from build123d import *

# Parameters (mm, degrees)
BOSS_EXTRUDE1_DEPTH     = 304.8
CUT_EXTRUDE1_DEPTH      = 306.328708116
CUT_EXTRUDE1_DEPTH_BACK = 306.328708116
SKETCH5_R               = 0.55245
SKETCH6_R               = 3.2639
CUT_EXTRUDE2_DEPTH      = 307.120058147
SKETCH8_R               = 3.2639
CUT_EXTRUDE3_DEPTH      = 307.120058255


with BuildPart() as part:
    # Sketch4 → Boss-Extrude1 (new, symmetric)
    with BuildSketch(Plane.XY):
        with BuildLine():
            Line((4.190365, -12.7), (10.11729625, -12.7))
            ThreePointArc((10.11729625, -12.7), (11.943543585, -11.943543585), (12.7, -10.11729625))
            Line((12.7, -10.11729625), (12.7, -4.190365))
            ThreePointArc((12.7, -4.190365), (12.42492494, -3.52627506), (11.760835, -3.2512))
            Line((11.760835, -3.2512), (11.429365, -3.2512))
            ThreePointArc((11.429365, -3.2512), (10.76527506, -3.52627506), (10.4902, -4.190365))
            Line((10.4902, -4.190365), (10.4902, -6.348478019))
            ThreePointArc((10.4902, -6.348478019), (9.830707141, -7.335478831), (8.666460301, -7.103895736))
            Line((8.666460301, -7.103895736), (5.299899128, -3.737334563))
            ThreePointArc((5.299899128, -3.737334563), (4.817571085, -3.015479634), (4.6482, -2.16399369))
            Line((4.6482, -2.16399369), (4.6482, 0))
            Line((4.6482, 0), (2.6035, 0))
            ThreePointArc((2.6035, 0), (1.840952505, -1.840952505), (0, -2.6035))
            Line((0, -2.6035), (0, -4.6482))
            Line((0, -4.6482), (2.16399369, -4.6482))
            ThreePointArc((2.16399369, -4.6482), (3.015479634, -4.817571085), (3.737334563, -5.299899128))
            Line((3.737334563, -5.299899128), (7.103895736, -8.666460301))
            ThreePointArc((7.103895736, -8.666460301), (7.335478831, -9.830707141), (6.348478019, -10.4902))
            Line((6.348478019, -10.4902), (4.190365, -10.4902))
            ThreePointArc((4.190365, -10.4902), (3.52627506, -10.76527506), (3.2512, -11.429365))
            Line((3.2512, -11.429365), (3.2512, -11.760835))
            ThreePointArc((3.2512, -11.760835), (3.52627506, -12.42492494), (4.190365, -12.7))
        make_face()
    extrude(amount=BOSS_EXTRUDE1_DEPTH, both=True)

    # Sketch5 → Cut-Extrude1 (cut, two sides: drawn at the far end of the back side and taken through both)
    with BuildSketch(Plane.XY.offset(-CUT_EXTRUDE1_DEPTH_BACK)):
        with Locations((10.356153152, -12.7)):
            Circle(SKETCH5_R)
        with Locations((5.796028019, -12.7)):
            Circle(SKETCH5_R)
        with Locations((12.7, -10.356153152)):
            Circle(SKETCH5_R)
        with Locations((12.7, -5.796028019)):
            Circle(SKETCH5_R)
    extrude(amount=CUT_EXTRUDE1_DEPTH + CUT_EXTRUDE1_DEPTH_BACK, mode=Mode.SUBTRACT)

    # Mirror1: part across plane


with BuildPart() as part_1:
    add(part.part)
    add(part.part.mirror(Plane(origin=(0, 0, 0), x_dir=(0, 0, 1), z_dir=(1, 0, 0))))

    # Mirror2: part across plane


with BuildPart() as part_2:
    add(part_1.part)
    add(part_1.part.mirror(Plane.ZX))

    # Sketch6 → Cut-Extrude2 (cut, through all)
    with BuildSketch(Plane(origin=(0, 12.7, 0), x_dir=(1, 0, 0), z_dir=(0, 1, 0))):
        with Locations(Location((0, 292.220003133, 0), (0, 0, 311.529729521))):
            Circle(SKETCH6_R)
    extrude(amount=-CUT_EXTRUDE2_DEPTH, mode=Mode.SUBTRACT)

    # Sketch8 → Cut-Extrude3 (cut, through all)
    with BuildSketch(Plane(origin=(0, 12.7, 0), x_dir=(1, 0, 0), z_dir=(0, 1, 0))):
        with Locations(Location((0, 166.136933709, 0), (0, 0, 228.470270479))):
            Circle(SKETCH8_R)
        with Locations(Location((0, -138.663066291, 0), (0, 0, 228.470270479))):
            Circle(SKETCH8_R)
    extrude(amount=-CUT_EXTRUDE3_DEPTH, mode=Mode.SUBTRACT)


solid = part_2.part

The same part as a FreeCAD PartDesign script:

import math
import FreeCAD as App
import Part
import Sketcher
Q = App.Units.Quantity

doc = App.newDocument("Part")
body = doc.addObject("PartDesign::Body", "Body")

# Sketch on XY plane
sketch1 = doc.addObject("Sketcher::SketchObject", "Sketch")
body.addObject(sketch1)
sketch1.AttachmentSupport = (doc.XY_Plane, [""])
sketch1.MapMode = "FlatFace"
sketch1.addGeometry(Part.LineSegment(App.Vector(4.19, -12.7, 0), App.Vector(10.12, -12.7, 0)), False)
sketch1.addGeometry(Part.ArcOfCircle(Part.Circle(App.Vector(10.12, -10.12, 0), App.Vector(0, 0, 1), 2.58), math.radians(-90), math.radians(0)), False)
sketch1.addGeometry(Part.LineSegment(App.Vector(12.7, -10.12, 0), App.Vector(12.7, -4.19, 0)), False)
sketch1.addGeometry(Part.ArcOfCircle(Part.Circle(App.Vector(11.76, -4.19, 0), App.Vector(0, 0, 1), 0.94), math.radians(0), math.radians(90)), False)
sketch1.addGeometry(Part.LineSegment(App.Vector(11.76, -3.25, 0), App.Vector(11.43, -3.25, 0)), False)
sketch1.addGeometry(Part.ArcOfCircle(Part.Circle(App.Vector(11.43, -4.19, 0), App.Vector(0, 0, 1), 0.94), math.radians(90), math.radians(180)), False)
sketch1.addGeometry(Part.LineSegment(App.Vector(10.49, -4.19, 0), App.Vector(10.49, -6.35, 0)), False)
sketch1.addGeometry(Part.ArcOfCircle(Part.Circle(App.Vector(9.42, -6.35, 0), App.Vector(0, 0, 1), 1.07), math.radians(-135), math.radians(0)), False)
sketch1.addGeometry(Part.LineSegment(App.Vector(8.67, -7.1, 0), App.Vector(5.3, -3.74, 0)), False)
sketch1.addGeometry(Part.ArcOfCircle(Part.Circle(App.Vector(6.87, -2.16, 0), App.Vector(0, 0, 1), 2.23), math.radians(-180), math.radians(-135)), False)
sketch1.addGeometry(Part.LineSegment(App.Vector(4.65, -2.16, 0), App.Vector(4.65, 0, 0)), False)
sketch1.addGeometry(Part.LineSegment(App.Vector(4.65, 0, 0), App.Vector(2.6, 0, 0)), False)
sketch1.addGeometry(Part.ArcOfCircle(Part.Circle(App.Vector(0, 0, 0), App.Vector(0, 0, 1), 2.6), math.radians(-90), math.radians(0)), False)
sketch1.addGeometry(Part.LineSegment(App.Vector(0, -2.6, 0), App.Vector(0, -4.65, 0)), False)
sketch1.addGeometry(Part.LineSegment(App.Vector(0, -4.65, 0), App.Vector(2.16, -4.65, 0)), False)
sketch1.addGeometry(Part.ArcOfCircle(Part.Circle(App.Vector(2.16, -6.87, 0), App.Vector(0, 0, 1), 2.23), math.radians(45), math.radians(90)), False)
sketch1.addGeometry(Part.LineSegment(App.Vector(3.74, -5.3, 0), App.Vector(7.1, -8.67, 0)), False)
sketch1.addGeometry(Part.ArcOfCircle(Part.Circle(App.Vector(6.35, -9.42, 0), App.Vector(0, 0, 1), 1.07), math.radians(-90), math.radians(45)), False)
sketch1.addGeometry(Part.LineSegment(App.Vector(6.35, -10.49, 0), App.Vector(4.19, -10.49, 0)), False)
sketch1.addGeometry(Part.ArcOfCircle(Part.Circle(App.Vector(4.19, -11.43, 0), App.Vector(0, 0, 1), 0.94), math.radians(90), math.radians(180)), False)
sketch1.addGeometry(Part.LineSegment(App.Vector(3.25, -11.43, 0), App.Vector(3.25, -11.76, 0)), False)
sketch1.addGeometry(Part.ArcOfCircle(Part.Circle(App.Vector(4.19, -11.76, 0), App.Vector(0, 0, 1), 0.94), math.radians(-180), math.radians(-90)), False)
sketch1.addConstraint(Sketcher.Constraint("Tangent", 0, 2, 1, 1))
sketch1.addConstraint(Sketcher.Constraint("Tangent", 1, 2, 2, 1))
sketch1.addConstraint(Sketcher.Constraint("Tangent", 2, 2, 3, 1))
sketch1.addConstraint(Sketcher.Constraint("Tangent", 3, 2, 4, 1))
sketch1.addConstraint(Sketcher.Constraint("Tangent", 4, 2, 5, 1))
sketch1.addConstraint(Sketcher.Constraint("Tangent", 5, 2, 6, 1))
sketch1.addConstraint(Sketcher.Constraint("Tangent", 6, 2, 7, 2))
sketch1.addConstraint(Sketcher.Constraint("Tangent", 7, 1, 8, 1))
sketch1.addConstraint(Sketcher.Constraint("Tangent", 8, 2, 9, 2))
sketch1.addConstraint(Sketcher.Constraint("Tangent", 9, 1, 10, 1))
sketch1.addConstraint(Sketcher.Constraint("Coincident", 10, 2, 11, 1))
sketch1.addConstraint(Sketcher.Constraint("Coincident", 11, 2, 12, 2))
sketch1.addConstraint(Sketcher.Constraint("Coincident", 12, 1, 13, 1))
sketch1.addConstraint(Sketcher.Constraint("Coincident", 13, 2, 14, 1))
sketch1.addConstraint(Sketcher.Constraint("Tangent", 14, 2, 15, 2))
sketch1.addConstraint(Sketcher.Constraint("Tangent", 15, 1, 16, 1))
sketch1.addConstraint(Sketcher.Constraint("Tangent", 16, 2, 17, 2))
sketch1.addConstraint(Sketcher.Constraint("Tangent", 17, 1, 18, 1))
sketch1.addConstraint(Sketcher.Constraint("Tangent", 18, 2, 19, 1))
sketch1.addConstraint(Sketcher.Constraint("Tangent", 19, 2, 20, 1))
sketch1.addConstraint(Sketcher.Constraint("Tangent", 20, 2, 21, 1))
sketch1.addConstraint(Sketcher.Constraint("Tangent", 21, 2, 0, 1))
sketch1.addConstraint(Sketcher.Constraint("Horizontal", 0))
sketch1.addConstraint(Sketcher.Constraint("Vertical", 2))
sketch1.addConstraint(Sketcher.Constraint("Horizontal", 4))
sketch1.addConstraint(Sketcher.Constraint("Vertical", 6))
sketch1.addConstraint(Sketcher.Constraint("Vertical", 10))
sketch1.addConstraint(Sketcher.Constraint("Horizontal", 11))
sketch1.addConstraint(Sketcher.Constraint("Vertical", 13))
sketch1.addConstraint(Sketcher.Constraint("Horizontal", 14))
sketch1.addConstraint(Sketcher.Constraint("Horizontal", 18))
sketch1.addConstraint(Sketcher.Constraint("Vertical", 20))
sketch1.addConstraint(Sketcher.Constraint("Coincident", 12, 3, -1, 1))
sketch1.addConstraint(Sketcher.Constraint("Equal", 3, 5))
sketch1.addConstraint(Sketcher.Constraint("Equal", 9, 15))
sketch1.addConstraint(Sketcher.Constraint("Equal", 7, 17))
sketch1.addConstraint(Sketcher.Constraint("Equal", 5, 19))
sketch1.addConstraint(Sketcher.Constraint("Equal", 19, 21))
sketch1.addConstraint(Sketcher.Constraint("PointOnObject", 10, 2, -1))
sketch1.addConstraint(Sketcher.Constraint("PointOnObject", 12, 1, -2))
sketch1.addConstraint(Sketcher.Constraint("Parallel", 8, 16))
sketch1.addConstraint(Sketcher.Constraint("Equal", 0, 2))
sketch1.addConstraint(Sketcher.Constraint("Equal", 18, 6))
sketch1.addConstraint(Sketcher.Constraint("Equal", 14, 10))
sketch1.addConstraint(Sketcher.Constraint("Equal", 11, 13))
sketch1.addConstraint(Sketcher.Constraint("Equal", 4, 20))
sketch1.addConstraint(Sketcher.Constraint("Equal", 8, 16))
sketch1.addConstraint(Sketcher.Constraint("DistanceY", 0, 2, -1, 1, Q("0.5 in")))
sketch1.addConstraint(Sketcher.Constraint("Radius", 9, Q("0.0876 in")))
sketch1.addConstraint(Sketcher.Constraint("Radius", 12, Q("0.1025 in")))
sketch1.addConstraint(Sketcher.Constraint("DistanceX", 9, 1, 5, 2, Q("0.23 in")))
sketch1.addConstraint(Sketcher.Constraint("DistanceX", 11, 2, 11, 1, Q("0.0805 in")))
sketch1.addConstraint(Sketcher.Constraint("DistanceY", 3, 2, -1, 1, Q("0.128 in")))
sketch1.addConstraint(Sketcher.Constraint("Radius", 7, 1.068322))
sketch1.addConstraint(Sketcher.Constraint("DistanceX", 17, 3, 7, 3, Q("0.121 in")))
sketch1.addConstraint(Sketcher.Constraint("Radius", 1, 2.582704))
sketch1.addConstraint(Sketcher.Constraint("Radius", 3, 0.939165))
pad1 = doc.addObject("PartDesign::Pad", "Pad")
body.addObject(pad1)
pad1.Profile = sketch1
pad1.Length = Q("24 in")
pad1.Midplane = True

# Sketch on XY plane
sketch2 = doc.addObject("Sketcher::SketchObject", "Sketch001")
body.addObject(sketch2)
sketch2.AttachmentSupport = (doc.XY_Plane, [""])
sketch2.MapMode = "FlatFace"
sketch2.addGeometry(Part.Circle(App.Vector(10.4, -12.7, 0), App.Vector(0, 0, 1), 0.6), False)
sketch2.addGeometry(Part.Circle(App.Vector(5.8, -12.7, 0), App.Vector(0, 0, 1), 0.6), False)
sketch2.addGeometry(Part.Circle(App.Vector(12.7, -10.4, 0), App.Vector(0, 0, 1), 0.6), False)
sketch2.addGeometry(Part.Circle(App.Vector(12.7, -5.8, 0), App.Vector(0, 0, 1), 0.6), False)
sketch2.addConstraint(Sketcher.Constraint("Equal", 0, 1))
sketch2.addConstraint(Sketcher.Constraint("Equal", 1, 2))
sketch2.addConstraint(Sketcher.Constraint("Equal", 2, 3))
sketch2.addConstraint(Sketcher.Constraint("Horizontal", 0, 3, 1, 3))
sketch2.addConstraint(Sketcher.Constraint("Vertical", 2, 3, 3, 3))
sketch2.addConstraint(Sketcher.Constraint("Diameter", 0, Q("0.0435 in")))
sketch2.addConstraint(Sketcher.Constraint("DistanceY", 0, 3, -1, 1, Q("0.5 in")))
sketch2.addConstraint(Sketcher.Constraint("DistanceX", -1, 1, 2, 3, Q("0.5 in")))
sketch2.addConstraint(Sketcher.Constraint("DistanceX", -1, 1, 1, 3, 5.796028))
sketch2.addConstraint(Sketcher.Constraint("DistanceY", 3, 3, -1, 1, 5.796028))
sketch2.addConstraint(Sketcher.Constraint("DistanceX", -1, 1, 0, 3, 10.356153))
sketch2.addConstraint(Sketcher.Constraint("DistanceY", 2, 3, -1, 1, 10.356153))
pocket1 = doc.addObject("PartDesign::Pocket", "Pocket")
body.addObject(pocket1)
pocket1.Profile = sketch2
pocket1.Type = "ThroughAll"
pocket1.Midplane = True
body2 = doc.addObject("PartDesign::Body", "Body001")
doc.recompute()

body2.BaseFeature = body
doc.recompute()

mirroring = doc.addObject("Part::Mirroring", "Mirroring")
mirroring.Source = body
mirroring.Base = App.Vector(0, 0, 0)
mirroring.Normal = App.Vector(1, 0, 0)
body3 = doc.addObject("PartDesign::Body", "Body002")
body3.BaseFeature = mirroring
boolean = doc.addObject("PartDesign::Boolean", "Boolean")
body2.addObject(boolean)
boolean.Type = "Fuse"
boolean.addObjects([body3])
doc.recompute()
body4 = doc.addObject("PartDesign::Body", "Body003")
doc.recompute()

body4.BaseFeature = body2
doc.recompute()

mirroring2 = doc.addObject("Part::Mirroring", "Mirroring001")
mirroring2.Source = body2
mirroring2.Base = App.Vector(0, 0, 0)
mirroring2.Normal = App.Vector(0, 1, 0)
body5 = doc.addObject("PartDesign::Body", "Body004")
body5.BaseFeature = mirroring2
boolean2 = doc.addObject("PartDesign::Boolean", "Boolean001")
body4.addObject(boolean2)
boolean2.Type = "Fuse"
boolean2.addObjects([body5])
doc.recompute()

# Sketch on XZ plane
sketch3 = doc.addObject("Sketcher::SketchObject", "Sketch002")
body4.addObject(sketch3)
sketch3.AttachmentSupport = (doc.getObject("XZ_Plane003"), [""])
sketch3.MapMode = "FlatFace"
sketch3.AttachmentOffset = App.Placement(App.Vector(0, 0, -0.5 * 25.4), App.Rotation())
sketch3.addGeometry(Part.Circle(App.Vector(0, -292.2, 0), App.Vector(0, 0, 1), 3.3), False)
sketch3.addConstraint(Sketcher.Constraint("PointOnObject", 0, 3, -2))
sketch3.addConstraint(Sketcher.Constraint("Diameter", 0, Q("0.257 in")))
sketch3.addConstraint(Sketcher.Constraint("DistanceY", 0, 3, -1, 1, 292.220003))
pocket2 = doc.addObject("PartDesign::Pocket", "Pocket001")
body4.addObject(pocket2)
pocket2.Profile = sketch3
pocket2.Type = "ThroughAll"
pocket2.Reversed = True

# Sketch on XZ plane
sketch4 = doc.addObject("Sketcher::SketchObject", "Sketch003")
body4.addObject(sketch4)
sketch4.AttachmentSupport = (doc.getObject("XZ_Plane003"), [""])
sketch4.MapMode = "FlatFace"
sketch4.AttachmentOffset = App.Placement(App.Vector(0, 0, -0.5 * 25.4), App.Rotation())
sketch4.addGeometry(Part.Circle(App.Vector(0, -166.1, 0), App.Vector(0, 0, 1), 3.3), False)
sketch4.addGeometry(Part.Circle(App.Vector(0, 138.7, 0), App.Vector(0, 0, 1), 3.3), False)
sketch4.addConstraint(Sketcher.Constraint("Equal", 0, 1))
sketch4.addConstraint(Sketcher.Constraint("PointOnObject", 0, 3, -2))
sketch4.addConstraint(Sketcher.Constraint("PointOnObject", 1, 3, -2))
sketch4.addConstraint(Sketcher.Constraint("Diameter", 0, Q("0.257 in")))
sketch4.addConstraint(Sketcher.Constraint("DistanceY", 0, 3, 1, 3, Q("12 in")))
sketch4.addConstraint(Sketcher.Constraint("DistanceY", 0, 3, -1, 1, 166.136934))
pocket3 = doc.addObject("PartDesign::Pocket", "Pocket002")
body4.addObject(pocket3)
pocket3.Profile = sketch4
pocket3.Type = "ThroughAll"
pocket3.Reversed = True
mirroring.Visibility = False
mirroring2.Visibility = False

doc.recompute()
